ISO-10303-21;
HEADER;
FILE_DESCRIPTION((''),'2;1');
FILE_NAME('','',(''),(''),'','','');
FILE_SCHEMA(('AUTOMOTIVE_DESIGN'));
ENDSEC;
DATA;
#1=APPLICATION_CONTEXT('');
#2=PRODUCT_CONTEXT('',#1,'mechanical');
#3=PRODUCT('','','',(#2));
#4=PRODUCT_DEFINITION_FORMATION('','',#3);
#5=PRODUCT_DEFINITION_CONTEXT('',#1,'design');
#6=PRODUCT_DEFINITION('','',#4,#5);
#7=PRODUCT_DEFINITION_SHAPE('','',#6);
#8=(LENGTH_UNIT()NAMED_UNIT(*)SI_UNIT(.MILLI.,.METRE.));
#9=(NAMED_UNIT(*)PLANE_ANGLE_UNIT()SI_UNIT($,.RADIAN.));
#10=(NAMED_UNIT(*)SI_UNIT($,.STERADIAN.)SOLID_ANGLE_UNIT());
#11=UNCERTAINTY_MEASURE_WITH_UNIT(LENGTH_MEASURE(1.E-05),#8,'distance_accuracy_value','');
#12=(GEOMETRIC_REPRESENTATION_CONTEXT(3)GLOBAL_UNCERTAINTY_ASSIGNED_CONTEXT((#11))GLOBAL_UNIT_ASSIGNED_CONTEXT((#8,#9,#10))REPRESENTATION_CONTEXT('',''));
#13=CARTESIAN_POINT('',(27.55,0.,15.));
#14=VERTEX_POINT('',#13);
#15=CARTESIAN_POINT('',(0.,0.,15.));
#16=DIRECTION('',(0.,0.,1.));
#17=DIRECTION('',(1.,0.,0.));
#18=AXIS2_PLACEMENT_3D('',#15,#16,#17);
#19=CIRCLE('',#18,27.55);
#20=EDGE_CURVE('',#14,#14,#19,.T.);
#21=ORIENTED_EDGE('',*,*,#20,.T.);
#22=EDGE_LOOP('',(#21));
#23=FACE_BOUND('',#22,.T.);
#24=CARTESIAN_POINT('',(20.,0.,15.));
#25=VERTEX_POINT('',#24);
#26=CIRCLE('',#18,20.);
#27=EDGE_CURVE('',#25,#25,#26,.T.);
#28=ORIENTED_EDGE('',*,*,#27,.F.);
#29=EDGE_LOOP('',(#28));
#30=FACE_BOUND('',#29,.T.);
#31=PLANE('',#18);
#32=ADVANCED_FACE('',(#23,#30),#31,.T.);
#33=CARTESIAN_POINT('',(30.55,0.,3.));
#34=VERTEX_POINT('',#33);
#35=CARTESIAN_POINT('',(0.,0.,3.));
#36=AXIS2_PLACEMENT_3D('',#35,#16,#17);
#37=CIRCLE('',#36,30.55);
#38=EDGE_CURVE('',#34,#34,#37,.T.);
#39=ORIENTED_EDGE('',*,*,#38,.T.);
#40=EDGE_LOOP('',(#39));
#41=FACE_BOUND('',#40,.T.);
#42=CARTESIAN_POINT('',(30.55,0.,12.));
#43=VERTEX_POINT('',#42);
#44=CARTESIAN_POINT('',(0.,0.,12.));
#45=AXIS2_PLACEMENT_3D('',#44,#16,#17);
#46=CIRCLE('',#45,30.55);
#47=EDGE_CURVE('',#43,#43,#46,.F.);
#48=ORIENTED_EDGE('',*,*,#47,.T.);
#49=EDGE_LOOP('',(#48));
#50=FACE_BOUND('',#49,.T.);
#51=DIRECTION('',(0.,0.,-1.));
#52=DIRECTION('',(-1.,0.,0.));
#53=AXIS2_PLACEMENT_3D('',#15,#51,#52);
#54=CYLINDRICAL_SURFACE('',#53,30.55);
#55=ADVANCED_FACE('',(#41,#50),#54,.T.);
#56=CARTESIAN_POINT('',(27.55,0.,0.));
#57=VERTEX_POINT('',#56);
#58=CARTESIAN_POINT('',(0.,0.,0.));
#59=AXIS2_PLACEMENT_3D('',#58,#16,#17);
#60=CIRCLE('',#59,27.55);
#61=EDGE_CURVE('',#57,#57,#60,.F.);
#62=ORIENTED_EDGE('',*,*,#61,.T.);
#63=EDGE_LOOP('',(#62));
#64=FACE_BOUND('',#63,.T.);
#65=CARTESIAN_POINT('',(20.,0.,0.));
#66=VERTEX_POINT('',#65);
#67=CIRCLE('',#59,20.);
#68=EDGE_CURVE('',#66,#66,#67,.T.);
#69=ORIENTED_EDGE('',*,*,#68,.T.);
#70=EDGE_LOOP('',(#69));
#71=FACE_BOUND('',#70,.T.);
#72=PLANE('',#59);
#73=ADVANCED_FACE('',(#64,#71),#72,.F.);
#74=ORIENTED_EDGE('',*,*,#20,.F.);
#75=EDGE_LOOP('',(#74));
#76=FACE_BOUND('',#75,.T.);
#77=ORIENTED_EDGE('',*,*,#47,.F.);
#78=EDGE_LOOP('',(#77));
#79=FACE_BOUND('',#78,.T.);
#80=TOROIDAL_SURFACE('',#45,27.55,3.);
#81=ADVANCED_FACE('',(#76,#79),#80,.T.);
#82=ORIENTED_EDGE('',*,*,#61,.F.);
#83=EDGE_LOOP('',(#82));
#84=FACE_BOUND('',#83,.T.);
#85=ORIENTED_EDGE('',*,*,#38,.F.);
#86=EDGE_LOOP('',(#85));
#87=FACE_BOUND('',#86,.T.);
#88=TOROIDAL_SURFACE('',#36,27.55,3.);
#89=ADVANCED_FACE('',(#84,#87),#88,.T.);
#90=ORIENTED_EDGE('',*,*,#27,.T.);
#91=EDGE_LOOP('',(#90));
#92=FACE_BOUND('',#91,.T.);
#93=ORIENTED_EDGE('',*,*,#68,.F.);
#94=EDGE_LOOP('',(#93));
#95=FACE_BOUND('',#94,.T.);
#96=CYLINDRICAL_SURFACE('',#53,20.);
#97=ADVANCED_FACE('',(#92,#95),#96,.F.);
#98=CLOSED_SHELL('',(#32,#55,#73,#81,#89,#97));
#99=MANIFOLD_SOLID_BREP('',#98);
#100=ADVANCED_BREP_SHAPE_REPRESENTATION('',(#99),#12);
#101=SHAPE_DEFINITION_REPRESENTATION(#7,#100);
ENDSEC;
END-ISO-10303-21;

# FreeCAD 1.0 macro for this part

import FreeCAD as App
import Part
import Sketcher

V = App.Vector
Q = App.Units.Quantity


def edges_at(feature, points):
    """Names of the edges that pass closest to the given points."""
    edges = feature.Shape.Edges
    near = lambda p: min(range(len(edges)), key=lambda i: edges[i].distToShape(Part.Vertex(*p))[0])
    return sorted({f"Edge{near(p) + 1}" for p in points})

doc = App.newDocument("Part")
params = doc.addObject("Spreadsheet::Sheet", "Params")
for row, (alias, value) in enumerate([
    ("sketch1_diameter", "40 mm"),
    ("sketch1_diameter2", "61.1 mm"),
    ("pad1_length", "15 mm"),
    ("fillet_radius", "3 mm"),
], start=1):
    params.set(f"A{row}", alias)
    params.set(f"B{row}", "=" + value)
    params.setAlias(f"B{row}", alias)

body = doc.addObject("PartDesign::Body", "Body")

sketch1 = body.newObject("Sketcher::SketchObject", "Sketch")
sketch1.AttachmentSupport = (doc.getObject("XY_Plane"), [""])
sketch1.MapMode = "FlatFace"
sketch1.addGeometry([
    Part.Circle(V(0, 0, 0), V(0, 0, 1), 31),
    Part.Circle(V(0, 0, 0), V(0, 0, 1), 20),
], False)
sketch1.addConstraint([
    Sketcher.Constraint("Coincident", 0, 3, -1, 1),
    Sketcher.Constraint("Coincident", 1, 3, -1, 1),
    Sketcher.Constraint("Diameter", 1, Q("40 mm")),
    Sketcher.Constraint("Diameter", 0, Q("61.1 mm")),
])
sketch1.setExpression("Constraints[2]", "Params.sketch1_diameter")
sketch1.setExpression("Constraints[3]", "Params.sketch1_diameter2")
pad1 = body.newObject("PartDesign::Pad", "Pad")
pad1.Profile = sketch1
pad1.setExpression("Length", "Params.pad1_length")
doc.recompute()

fillet = body.newObject("PartDesign::Fillet", "Fillet")
fillet.Base = (pad1, edges_at(pad1, [(-30.55, 0, 0), (-30.55, 0, 15)]))
fillet.setExpression("Radius", "Params.fillet_radius")

doc.recompute()
